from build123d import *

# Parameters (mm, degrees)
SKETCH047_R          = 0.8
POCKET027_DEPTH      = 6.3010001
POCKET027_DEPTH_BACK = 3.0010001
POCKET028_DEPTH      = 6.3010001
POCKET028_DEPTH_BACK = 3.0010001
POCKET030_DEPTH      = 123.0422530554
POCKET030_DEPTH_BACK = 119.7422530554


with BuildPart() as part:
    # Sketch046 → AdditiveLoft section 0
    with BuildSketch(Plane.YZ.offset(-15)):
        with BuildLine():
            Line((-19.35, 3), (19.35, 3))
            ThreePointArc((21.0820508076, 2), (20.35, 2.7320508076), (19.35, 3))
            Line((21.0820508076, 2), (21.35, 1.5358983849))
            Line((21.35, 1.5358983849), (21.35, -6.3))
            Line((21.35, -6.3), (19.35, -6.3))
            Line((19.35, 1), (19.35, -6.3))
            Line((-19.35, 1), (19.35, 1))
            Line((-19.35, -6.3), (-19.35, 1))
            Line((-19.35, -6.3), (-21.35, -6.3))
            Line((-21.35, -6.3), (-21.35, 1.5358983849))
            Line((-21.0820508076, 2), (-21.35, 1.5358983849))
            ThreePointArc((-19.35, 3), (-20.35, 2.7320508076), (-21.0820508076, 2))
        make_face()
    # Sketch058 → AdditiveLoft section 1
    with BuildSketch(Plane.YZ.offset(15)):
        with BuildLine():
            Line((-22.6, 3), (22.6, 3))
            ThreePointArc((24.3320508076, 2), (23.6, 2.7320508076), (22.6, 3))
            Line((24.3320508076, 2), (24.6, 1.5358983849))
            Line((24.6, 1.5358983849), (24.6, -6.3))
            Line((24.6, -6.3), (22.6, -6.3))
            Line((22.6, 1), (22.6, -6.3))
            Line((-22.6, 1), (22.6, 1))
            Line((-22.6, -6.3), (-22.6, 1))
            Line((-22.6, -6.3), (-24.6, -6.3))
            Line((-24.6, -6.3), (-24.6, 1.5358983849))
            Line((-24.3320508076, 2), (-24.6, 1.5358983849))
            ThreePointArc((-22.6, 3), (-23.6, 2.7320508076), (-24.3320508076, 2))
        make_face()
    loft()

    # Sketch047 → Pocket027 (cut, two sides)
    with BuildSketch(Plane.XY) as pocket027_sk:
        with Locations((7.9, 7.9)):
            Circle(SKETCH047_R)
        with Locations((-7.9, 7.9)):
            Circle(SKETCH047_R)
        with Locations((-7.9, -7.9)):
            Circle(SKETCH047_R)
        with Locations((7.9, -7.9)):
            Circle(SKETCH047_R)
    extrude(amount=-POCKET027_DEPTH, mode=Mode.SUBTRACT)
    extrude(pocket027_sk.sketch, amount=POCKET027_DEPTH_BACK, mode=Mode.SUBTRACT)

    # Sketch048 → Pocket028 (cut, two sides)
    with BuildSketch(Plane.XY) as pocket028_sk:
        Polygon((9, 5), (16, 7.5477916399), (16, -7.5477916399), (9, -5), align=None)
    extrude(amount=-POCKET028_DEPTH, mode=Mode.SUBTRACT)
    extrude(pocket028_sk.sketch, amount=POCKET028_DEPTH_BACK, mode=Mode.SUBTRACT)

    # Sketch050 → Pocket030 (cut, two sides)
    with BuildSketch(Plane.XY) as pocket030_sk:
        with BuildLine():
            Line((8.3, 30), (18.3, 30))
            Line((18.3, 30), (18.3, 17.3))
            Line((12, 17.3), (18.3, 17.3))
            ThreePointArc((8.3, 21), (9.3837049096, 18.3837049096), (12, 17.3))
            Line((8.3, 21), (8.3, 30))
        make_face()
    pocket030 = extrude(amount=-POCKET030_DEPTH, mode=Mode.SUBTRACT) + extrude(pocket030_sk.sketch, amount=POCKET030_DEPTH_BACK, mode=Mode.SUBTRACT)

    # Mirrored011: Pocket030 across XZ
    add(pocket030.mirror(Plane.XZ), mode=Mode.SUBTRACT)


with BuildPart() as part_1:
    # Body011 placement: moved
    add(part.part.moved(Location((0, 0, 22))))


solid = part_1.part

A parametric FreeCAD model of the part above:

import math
import FreeCAD as App
import Part
import Sketcher
from FreeCAD import Vector
Q = App.Units.Quantity

doc = App.newDocument("Part")
body = doc.addObject("PartDesign::Body", "Body")

# Sketch on YZ plane
sketch1 = body.newObject("Sketcher::SketchObject", "Sketch")
sketch1.AttachmentSupport = (doc.getObject("YZ_Plane"), [""])
sketch1.MapMode = "FlatFace"
sketch1.AttachmentOffset = App.Placement(Vector(0, 0, -15), App.Rotation())
sketch1.addGeometry([
    Part.LineSegment(Vector(19.35, 3, 0), Vector(-19.35, 3, 0)),  # 0
    Part.ArcOfCircle(Part.Circle(Vector(-19.35, 1, 0), Vector(0, 0, 1), 2), math.radians(90), math.radians(150)),  # 1
    Part.LineSegment(Vector(-21.082051, 2, 0), Vector(-21.35, 1.535898, 0)),  # 2
    Part.LineSegment(Vector(-21.35, 1.535898, 0), Vector(-21.35, -6.3, 0)),  # 3
    Part.LineSegment(Vector(-21.35, -6.3, 0), Vector(-19.35, -6.3, 0)),  # 4
    Part.LineSegment(Vector(-19.35, -6.3, 0), Vector(-19.35, 1, 0)),  # 5
    Part.LineSegment(Vector(-19.35, 1, 0), Vector(19.35, 1, 0)),  # 6
    Part.LineSegment(Vector(19.35, 1, 0), Vector(19.35, -6.3, 0)),  # 7
    Part.LineSegment(Vector(19.35, -6.3, 0), Vector(21.35, -6.3, 0)),  # 8
    Part.LineSegment(Vector(21.35, -6.3, 0), Vector(21.35, 1.535898, 0)),  # 9
    Part.LineSegment(Vector(21.35, 1.535898, 0), Vector(21.082051, 2, 0)),  # 10
    Part.ArcOfCircle(Part.Circle(Vector(19.35, 1, 0), Vector(0, 0, 1), 2), math.radians(30), math.radians(90)),  # 11
], False)
sketch1.addConstraint([
    Sketcher.Constraint("Tangent", 0, 2, 1, 1),
    Sketcher.Constraint("Tangent", 1, 2, 2, 1),
    Sketcher.Constraint("Coincident", 2, 2, 3, 1),
    Sketcher.Constraint("Coincident", 3, 2, 4, 1),
    Sketcher.Constraint("Coincident", 4, 2, 5, 1),
    Sketcher.Constraint("Coincident", 5, 2, 6, 1),
    Sketcher.Constraint("Coincident", 6, 2, 7, 1),
    Sketcher.Constraint("Coincident", 7, 2, 8, 1),
    Sketcher.Constraint("Coincident", 8, 2, 9, 1),
    Sketcher.Constraint("Coincident", 9, 2, 10, 1),
    Sketcher.Constraint("Tangent", 10, 2, 11, 1),
    Sketcher.Constraint("Tangent", 11, 2, 0, 1),
    Sketcher.Constraint("Horizontal", 0),
    Sketcher.Constraint("Vertical", 3),
    Sketcher.Constraint("Horizontal", 4),
    Sketcher.Constraint("Vertical", 5),
    Sketcher.Constraint("Horizontal", 6),
    Sketcher.Constraint("Vertical", 7),
    Sketcher.Constraint("Horizontal", 8),
    Sketcher.Constraint("Vertical", 9),
    Sketcher.Constraint("Coincident", 5, 2, 1, 3),
    Sketcher.Constraint("Coincident", 6, 2, 11, 3),
    Sketcher.Constraint("Symmetric", 4, 2, 7, 2, -2),
    Sketcher.Constraint("Symmetric", 2, 2, 9, 2, -2),
    Sketcher.Constraint("Radius", 1, 2.0),
    Sketcher.Constraint("DistanceX", 4, 1, 4, 2, 2.0),
    Sketcher.Constraint("Angle", 2, Q("-120 deg")),
    Sketcher.Constraint("DistanceX", 0, 2, 0, 1, 38.7),
    Sketcher.Constraint("DistanceY", 5, 1, 5, 2, 7.3),
    Sketcher.Constraint("DistanceY", -1, 1, 1, 3, 1.0),
])

# Sketch on YZ plane
sketch2 = body.newObject("Sketcher::SketchObject", "Sketch001")
sketch2.AttachmentSupport = (doc.getObject("YZ_Plane"), [""])
sketch2.MapMode = "FlatFace"
sketch2.AttachmentOffset = App.Placement(Vector(0, 0, 15), App.Rotation())
sketch2.addGeometry([
    Part.LineSegment(Vector(22.6, 3, 0), Vector(-22.6, 3, 0)),  # 0
    Part.ArcOfCircle(Part.Circle(Vector(-22.6, 1, 0), Vector(0, 0, 1), 2), math.radians(90), math.radians(150)),  # 1
    Part.LineSegment(Vector(-24.332051, 2, 0), Vector(-24.6, 1.535898, 0)),  # 2
    Part.LineSegment(Vector(-24.6, 1.535898, 0), Vector(-24.6, -6.3, 0)),  # 3
    Part.LineSegment(Vector(-24.6, -6.3, 0), Vector(-22.6, -6.3, 0)),  # 4
    Part.LineSegment(Vector(-22.6, -6.3, 0), Vector(-22.6, 1, 0)),  # 5
    Part.LineSegment(Vector(-22.6, 1, 0), Vector(22.6, 1, 0)),  # 6
    Part.LineSegment(Vector(22.6, 1, 0), Vector(22.6, -6.3, 0)),  # 7
    Part.LineSegment(Vector(22.6, -6.3, 0), Vector(24.6, -6.3, 0)),  # 8
    Part.LineSegment(Vector(24.6, -6.3, 0), Vector(24.6, 1.535898, 0)),  # 9
    Part.LineSegment(Vector(24.6, 1.535898, 0), Vector(24.332051, 2, 0)),  # 10
    Part.ArcOfCircle(Part.Circle(Vector(22.6, 1, 0), Vector(0, 0, 1), 2), math.radians(30), math.radians(90)),  # 11
], False)
sketch2.addConstraint([
    Sketcher.Constraint("Tangent", 0, 2, 1, 1),
    Sketcher.Constraint("Tangent", 1, 2, 2, 1),
    Sketcher.Constraint("Coincident", 2, 2, 3, 1),
    Sketcher.Constraint("Coincident", 3, 2, 4, 1),
    Sketcher.Constraint("Coincident", 4, 2, 5, 1),
    Sketcher.Constraint("Coincident", 5, 2, 6, 1),
    Sketcher.Constraint("Coincident", 6, 2, 7, 1),
    Sketcher.Constraint("Coincident", 7, 2, 8, 1),
    Sketcher.Constraint("Coincident", 8, 2, 9, 1),
    Sketcher.Constraint("Coincident", 9, 2, 10, 1),
    Sketcher.Constraint("Tangent", 10, 2, 11, 1),
    Sketcher.Constraint("Tangent", 11, 2, 0, 1),
    Sketcher.Constraint("Horizontal", 0),
    Sketcher.Constraint("Vertical", 3),
    Sketcher.Constraint("Horizontal", 4),
    Sketcher.Constraint("Vertical", 5),
    Sketcher.Constraint("Horizontal", 6),
    Sketcher.Constraint("Vertical", 7),
    Sketcher.Constraint("Horizontal", 8),
    Sketcher.Constraint("Vertical", 9),
    Sketcher.Constraint("Coincident", 5, 2, 1, 3),
    Sketcher.Constraint("Coincident", 6, 2, 11, 3),
    Sketcher.Constraint("Symmetric", 4, 2, 7, 2, -2),
    Sketcher.Constraint("Symmetric", 2, 2, 9, 2, -2),
    Sketcher.Constraint("Radius", 1, 2.0),
    Sketcher.Constraint("DistanceX", 4, 1, 4, 2, 2.0),
    Sketcher.Constraint("Angle", 2, Q("-120 deg")),
    Sketcher.Constraint("DistanceX", 0, 2, 0, 1, 45.2),
    Sketcher.Constraint("DistanceY", 5, 1, 5, 2, 7.3),
    Sketcher.Constraint("DistanceY", -1, 1, 1, 3, 1.0),
])

additiveloft = body.newObject("PartDesign::AdditiveLoft", "AdditiveLoft")
additiveloft.Profile = sketch1
additiveloft.Sections = [sketch2]

# Sketch on XY plane
sketch3 = body.newObject("Sketcher::SketchObject", "Sketch002")
sketch3.AttachmentSupport = (doc.getObject("XY_Plane"), [""])
sketch3.MapMode = "FlatFace"
sketch3.addGeometry([
    Part.Circle(Vector(7.9, 7.9, 0), Vector(0, 0, 1), 0.8),
    Part.Circle(Vector(-7.9, 7.9, 0), Vector(0, 0, 1), 0.8),
    Part.Circle(Vector(-7.9, -7.9, 0), Vector(0, 0, 1), 0.8),
    Part.Circle(Vector(7.9, -7.9, 0), Vector(0, 0, 1), 0.8),
], False)
sketch3.addConstraint([
    Sketcher.Constraint("Equal", 0, 1),
    Sketcher.Constraint("Equal", 1, 2),
    Sketcher.Constraint("Equal", 2, 3),
    Sketcher.Constraint("Symmetric", 0, 3, 2, 3, -1, 1),
    Sketcher.Constraint("Symmetric", 1, 3, 3, 3, -1, 1),
    Sketcher.Constraint("Symmetric", 0, 3, 1, 3, -2),
    Sketcher.Constraint("Diameter", 0, 1.6),
    Sketcher.Constraint("DistanceX", -1, 1, 0, 3, 7.9),
    Sketcher.Constraint("DistanceY", -1, 1, 0, 3, 7.9),
])
pocket1 = body.newObject("PartDesign::Pocket", "Pocket")
pocket1.Profile = sketch3
pocket1.Type = "ThroughAll"
pocket1.Midplane = True

# Sketch on XY plane
sketch4 = body.newObject("Sketcher::SketchObject", "Sketch003")
sketch4.AttachmentSupport = (doc.getObject("XY_Plane"), [""])
sketch4.MapMode = "FlatFace"
sketch4.addGeometry([
    Part.LineSegment(Vector(16, 7.547792, 0), Vector(9, 5, 0)),
    Part.LineSegment(Vector(9, 5, 0), Vector(9, -5, 0)),
    Part.LineSegment(Vector(9, -5, 0), Vector(16, -7.547792, 0)),
    Part.LineSegment(Vector(16, -7.547792, 0), Vector(16, 7.547792, 0)),
], False)
sketch4.addConstraint([
    Sketcher.Constraint("Coincident", 0, 2, 1, 1),
    Sketcher.Constraint("Coincident", 1, 2, 2, 1),
    Sketcher.Constraint("Coincident", 2, 2, 3, 1),
    Sketcher.Constraint("Coincident", 3, 2, 0, 1),
    Sketcher.Constraint("Vertical", 1),
    Sketcher.Constraint("Vertical", 3),
    Sketcher.Constraint("Equal", 0, 2),
    Sketcher.Constraint("DistanceY", 1, 2, 1, 1, 10.0),
    Sketcher.Constraint("Angle", 0, Q("-160 deg")),
    Sketcher.Constraint("DistanceX", -1, 1, 0, 2, 9.0),
    Sketcher.Constraint("DistanceY", -1, 1, 0, 2, 5.0),
    Sketcher.Constraint("DistanceX", -1, 1, 2, 2, 16.0),
])
pocket2 = body.newObject("PartDesign::Pocket", "Pocket001")
pocket2.Profile = sketch4
pocket2.Type = "ThroughAll"
pocket2.Midplane = True

# Sketch on XY plane
sketch5 = body.newObject("Sketcher::SketchObject", "Sketch004")
sketch5.AttachmentSupport = (doc.getObject("XY_Plane"), [""])
sketch5.MapMode = "FlatFace"
sketch5.addGeometry([
    Part.LineSegment(Vector(18.3, 30, 0), Vector(8.3, 30, 0)),  # 0
    Part.LineSegment(Vector(8.3, 30, 0), Vector(8.3, 21, 0)),  # 1
    Part.ArcOfCircle(Part.Circle(Vector(12, 21, 0), Vector(0, 0, 1), 3.7), math.radians(180), math.radians(270)),  # 2
    Part.LineSegment(Vector(12, 17.3, 0), Vector(18.3, 17.3, 0)),  # 3
    Part.LineSegment(Vector(18.3, 17.3, 0), Vector(18.3, 30, 0)),  # 4
], False)
sketch5.addConstraint([
    Sketcher.Constraint("Coincident", 0, 2, 1, 1),
    Sketcher.Constraint("Tangent", 1, 2, 2, 1),
    Sketcher.Constraint("Tangent", 2, 2, 3, 1),
    Sketcher.Constraint("Coincident", 3, 2, 4, 1),
    Sketcher.Constraint("Coincident", 4, 2, 0, 1),
    Sketcher.Constraint("Horizontal", 0),
    Sketcher.Constraint("Vertical", 1),
    Sketcher.Constraint("Horizontal", 3),
    Sketcher.Constraint("Vertical", 4),
    Sketcher.Constraint("Radius", 2, 3.7),
    Sketcher.Constraint("DistanceX", 0, 2, 0, 1, 10.0),
    Sketcher.Constraint("DistanceY", 1, 2, 1, 1, 9.0),
    Sketcher.Constraint("DistanceX", -1, 1, 2, 3, 12.0),
    Sketcher.Constraint("DistanceY", -1, 1, 2, 3, 21.0),
])
pocket3 = body.newObject("PartDesign::Pocket", "Pocket002")
pocket3.Profile = sketch5
pocket3.Type = "ThroughAll"
pocket3.Midplane = True
doc.recompute()

mirrored = body.newObject("PartDesign::Mirrored", "Mirrored")
mirrored.Originals = [pocket3]
mirrored.MirrorPlane = (doc.getObject("XZ_Plane"), [""])
body.Tip = mirrored
body2 = doc.addObject("PartDesign::Body", "Body001")
doc.recompute()

body.Placement = App.Placement(Vector(0, 0, 22), App.Rotation(Vector(0, 0, 1), 0))
boolean = body2.newObject("PartDesign::Boolean", "Boolean")
boolean.Type = "Fuse"
boolean.addObjects([body])

doc.recompute()
